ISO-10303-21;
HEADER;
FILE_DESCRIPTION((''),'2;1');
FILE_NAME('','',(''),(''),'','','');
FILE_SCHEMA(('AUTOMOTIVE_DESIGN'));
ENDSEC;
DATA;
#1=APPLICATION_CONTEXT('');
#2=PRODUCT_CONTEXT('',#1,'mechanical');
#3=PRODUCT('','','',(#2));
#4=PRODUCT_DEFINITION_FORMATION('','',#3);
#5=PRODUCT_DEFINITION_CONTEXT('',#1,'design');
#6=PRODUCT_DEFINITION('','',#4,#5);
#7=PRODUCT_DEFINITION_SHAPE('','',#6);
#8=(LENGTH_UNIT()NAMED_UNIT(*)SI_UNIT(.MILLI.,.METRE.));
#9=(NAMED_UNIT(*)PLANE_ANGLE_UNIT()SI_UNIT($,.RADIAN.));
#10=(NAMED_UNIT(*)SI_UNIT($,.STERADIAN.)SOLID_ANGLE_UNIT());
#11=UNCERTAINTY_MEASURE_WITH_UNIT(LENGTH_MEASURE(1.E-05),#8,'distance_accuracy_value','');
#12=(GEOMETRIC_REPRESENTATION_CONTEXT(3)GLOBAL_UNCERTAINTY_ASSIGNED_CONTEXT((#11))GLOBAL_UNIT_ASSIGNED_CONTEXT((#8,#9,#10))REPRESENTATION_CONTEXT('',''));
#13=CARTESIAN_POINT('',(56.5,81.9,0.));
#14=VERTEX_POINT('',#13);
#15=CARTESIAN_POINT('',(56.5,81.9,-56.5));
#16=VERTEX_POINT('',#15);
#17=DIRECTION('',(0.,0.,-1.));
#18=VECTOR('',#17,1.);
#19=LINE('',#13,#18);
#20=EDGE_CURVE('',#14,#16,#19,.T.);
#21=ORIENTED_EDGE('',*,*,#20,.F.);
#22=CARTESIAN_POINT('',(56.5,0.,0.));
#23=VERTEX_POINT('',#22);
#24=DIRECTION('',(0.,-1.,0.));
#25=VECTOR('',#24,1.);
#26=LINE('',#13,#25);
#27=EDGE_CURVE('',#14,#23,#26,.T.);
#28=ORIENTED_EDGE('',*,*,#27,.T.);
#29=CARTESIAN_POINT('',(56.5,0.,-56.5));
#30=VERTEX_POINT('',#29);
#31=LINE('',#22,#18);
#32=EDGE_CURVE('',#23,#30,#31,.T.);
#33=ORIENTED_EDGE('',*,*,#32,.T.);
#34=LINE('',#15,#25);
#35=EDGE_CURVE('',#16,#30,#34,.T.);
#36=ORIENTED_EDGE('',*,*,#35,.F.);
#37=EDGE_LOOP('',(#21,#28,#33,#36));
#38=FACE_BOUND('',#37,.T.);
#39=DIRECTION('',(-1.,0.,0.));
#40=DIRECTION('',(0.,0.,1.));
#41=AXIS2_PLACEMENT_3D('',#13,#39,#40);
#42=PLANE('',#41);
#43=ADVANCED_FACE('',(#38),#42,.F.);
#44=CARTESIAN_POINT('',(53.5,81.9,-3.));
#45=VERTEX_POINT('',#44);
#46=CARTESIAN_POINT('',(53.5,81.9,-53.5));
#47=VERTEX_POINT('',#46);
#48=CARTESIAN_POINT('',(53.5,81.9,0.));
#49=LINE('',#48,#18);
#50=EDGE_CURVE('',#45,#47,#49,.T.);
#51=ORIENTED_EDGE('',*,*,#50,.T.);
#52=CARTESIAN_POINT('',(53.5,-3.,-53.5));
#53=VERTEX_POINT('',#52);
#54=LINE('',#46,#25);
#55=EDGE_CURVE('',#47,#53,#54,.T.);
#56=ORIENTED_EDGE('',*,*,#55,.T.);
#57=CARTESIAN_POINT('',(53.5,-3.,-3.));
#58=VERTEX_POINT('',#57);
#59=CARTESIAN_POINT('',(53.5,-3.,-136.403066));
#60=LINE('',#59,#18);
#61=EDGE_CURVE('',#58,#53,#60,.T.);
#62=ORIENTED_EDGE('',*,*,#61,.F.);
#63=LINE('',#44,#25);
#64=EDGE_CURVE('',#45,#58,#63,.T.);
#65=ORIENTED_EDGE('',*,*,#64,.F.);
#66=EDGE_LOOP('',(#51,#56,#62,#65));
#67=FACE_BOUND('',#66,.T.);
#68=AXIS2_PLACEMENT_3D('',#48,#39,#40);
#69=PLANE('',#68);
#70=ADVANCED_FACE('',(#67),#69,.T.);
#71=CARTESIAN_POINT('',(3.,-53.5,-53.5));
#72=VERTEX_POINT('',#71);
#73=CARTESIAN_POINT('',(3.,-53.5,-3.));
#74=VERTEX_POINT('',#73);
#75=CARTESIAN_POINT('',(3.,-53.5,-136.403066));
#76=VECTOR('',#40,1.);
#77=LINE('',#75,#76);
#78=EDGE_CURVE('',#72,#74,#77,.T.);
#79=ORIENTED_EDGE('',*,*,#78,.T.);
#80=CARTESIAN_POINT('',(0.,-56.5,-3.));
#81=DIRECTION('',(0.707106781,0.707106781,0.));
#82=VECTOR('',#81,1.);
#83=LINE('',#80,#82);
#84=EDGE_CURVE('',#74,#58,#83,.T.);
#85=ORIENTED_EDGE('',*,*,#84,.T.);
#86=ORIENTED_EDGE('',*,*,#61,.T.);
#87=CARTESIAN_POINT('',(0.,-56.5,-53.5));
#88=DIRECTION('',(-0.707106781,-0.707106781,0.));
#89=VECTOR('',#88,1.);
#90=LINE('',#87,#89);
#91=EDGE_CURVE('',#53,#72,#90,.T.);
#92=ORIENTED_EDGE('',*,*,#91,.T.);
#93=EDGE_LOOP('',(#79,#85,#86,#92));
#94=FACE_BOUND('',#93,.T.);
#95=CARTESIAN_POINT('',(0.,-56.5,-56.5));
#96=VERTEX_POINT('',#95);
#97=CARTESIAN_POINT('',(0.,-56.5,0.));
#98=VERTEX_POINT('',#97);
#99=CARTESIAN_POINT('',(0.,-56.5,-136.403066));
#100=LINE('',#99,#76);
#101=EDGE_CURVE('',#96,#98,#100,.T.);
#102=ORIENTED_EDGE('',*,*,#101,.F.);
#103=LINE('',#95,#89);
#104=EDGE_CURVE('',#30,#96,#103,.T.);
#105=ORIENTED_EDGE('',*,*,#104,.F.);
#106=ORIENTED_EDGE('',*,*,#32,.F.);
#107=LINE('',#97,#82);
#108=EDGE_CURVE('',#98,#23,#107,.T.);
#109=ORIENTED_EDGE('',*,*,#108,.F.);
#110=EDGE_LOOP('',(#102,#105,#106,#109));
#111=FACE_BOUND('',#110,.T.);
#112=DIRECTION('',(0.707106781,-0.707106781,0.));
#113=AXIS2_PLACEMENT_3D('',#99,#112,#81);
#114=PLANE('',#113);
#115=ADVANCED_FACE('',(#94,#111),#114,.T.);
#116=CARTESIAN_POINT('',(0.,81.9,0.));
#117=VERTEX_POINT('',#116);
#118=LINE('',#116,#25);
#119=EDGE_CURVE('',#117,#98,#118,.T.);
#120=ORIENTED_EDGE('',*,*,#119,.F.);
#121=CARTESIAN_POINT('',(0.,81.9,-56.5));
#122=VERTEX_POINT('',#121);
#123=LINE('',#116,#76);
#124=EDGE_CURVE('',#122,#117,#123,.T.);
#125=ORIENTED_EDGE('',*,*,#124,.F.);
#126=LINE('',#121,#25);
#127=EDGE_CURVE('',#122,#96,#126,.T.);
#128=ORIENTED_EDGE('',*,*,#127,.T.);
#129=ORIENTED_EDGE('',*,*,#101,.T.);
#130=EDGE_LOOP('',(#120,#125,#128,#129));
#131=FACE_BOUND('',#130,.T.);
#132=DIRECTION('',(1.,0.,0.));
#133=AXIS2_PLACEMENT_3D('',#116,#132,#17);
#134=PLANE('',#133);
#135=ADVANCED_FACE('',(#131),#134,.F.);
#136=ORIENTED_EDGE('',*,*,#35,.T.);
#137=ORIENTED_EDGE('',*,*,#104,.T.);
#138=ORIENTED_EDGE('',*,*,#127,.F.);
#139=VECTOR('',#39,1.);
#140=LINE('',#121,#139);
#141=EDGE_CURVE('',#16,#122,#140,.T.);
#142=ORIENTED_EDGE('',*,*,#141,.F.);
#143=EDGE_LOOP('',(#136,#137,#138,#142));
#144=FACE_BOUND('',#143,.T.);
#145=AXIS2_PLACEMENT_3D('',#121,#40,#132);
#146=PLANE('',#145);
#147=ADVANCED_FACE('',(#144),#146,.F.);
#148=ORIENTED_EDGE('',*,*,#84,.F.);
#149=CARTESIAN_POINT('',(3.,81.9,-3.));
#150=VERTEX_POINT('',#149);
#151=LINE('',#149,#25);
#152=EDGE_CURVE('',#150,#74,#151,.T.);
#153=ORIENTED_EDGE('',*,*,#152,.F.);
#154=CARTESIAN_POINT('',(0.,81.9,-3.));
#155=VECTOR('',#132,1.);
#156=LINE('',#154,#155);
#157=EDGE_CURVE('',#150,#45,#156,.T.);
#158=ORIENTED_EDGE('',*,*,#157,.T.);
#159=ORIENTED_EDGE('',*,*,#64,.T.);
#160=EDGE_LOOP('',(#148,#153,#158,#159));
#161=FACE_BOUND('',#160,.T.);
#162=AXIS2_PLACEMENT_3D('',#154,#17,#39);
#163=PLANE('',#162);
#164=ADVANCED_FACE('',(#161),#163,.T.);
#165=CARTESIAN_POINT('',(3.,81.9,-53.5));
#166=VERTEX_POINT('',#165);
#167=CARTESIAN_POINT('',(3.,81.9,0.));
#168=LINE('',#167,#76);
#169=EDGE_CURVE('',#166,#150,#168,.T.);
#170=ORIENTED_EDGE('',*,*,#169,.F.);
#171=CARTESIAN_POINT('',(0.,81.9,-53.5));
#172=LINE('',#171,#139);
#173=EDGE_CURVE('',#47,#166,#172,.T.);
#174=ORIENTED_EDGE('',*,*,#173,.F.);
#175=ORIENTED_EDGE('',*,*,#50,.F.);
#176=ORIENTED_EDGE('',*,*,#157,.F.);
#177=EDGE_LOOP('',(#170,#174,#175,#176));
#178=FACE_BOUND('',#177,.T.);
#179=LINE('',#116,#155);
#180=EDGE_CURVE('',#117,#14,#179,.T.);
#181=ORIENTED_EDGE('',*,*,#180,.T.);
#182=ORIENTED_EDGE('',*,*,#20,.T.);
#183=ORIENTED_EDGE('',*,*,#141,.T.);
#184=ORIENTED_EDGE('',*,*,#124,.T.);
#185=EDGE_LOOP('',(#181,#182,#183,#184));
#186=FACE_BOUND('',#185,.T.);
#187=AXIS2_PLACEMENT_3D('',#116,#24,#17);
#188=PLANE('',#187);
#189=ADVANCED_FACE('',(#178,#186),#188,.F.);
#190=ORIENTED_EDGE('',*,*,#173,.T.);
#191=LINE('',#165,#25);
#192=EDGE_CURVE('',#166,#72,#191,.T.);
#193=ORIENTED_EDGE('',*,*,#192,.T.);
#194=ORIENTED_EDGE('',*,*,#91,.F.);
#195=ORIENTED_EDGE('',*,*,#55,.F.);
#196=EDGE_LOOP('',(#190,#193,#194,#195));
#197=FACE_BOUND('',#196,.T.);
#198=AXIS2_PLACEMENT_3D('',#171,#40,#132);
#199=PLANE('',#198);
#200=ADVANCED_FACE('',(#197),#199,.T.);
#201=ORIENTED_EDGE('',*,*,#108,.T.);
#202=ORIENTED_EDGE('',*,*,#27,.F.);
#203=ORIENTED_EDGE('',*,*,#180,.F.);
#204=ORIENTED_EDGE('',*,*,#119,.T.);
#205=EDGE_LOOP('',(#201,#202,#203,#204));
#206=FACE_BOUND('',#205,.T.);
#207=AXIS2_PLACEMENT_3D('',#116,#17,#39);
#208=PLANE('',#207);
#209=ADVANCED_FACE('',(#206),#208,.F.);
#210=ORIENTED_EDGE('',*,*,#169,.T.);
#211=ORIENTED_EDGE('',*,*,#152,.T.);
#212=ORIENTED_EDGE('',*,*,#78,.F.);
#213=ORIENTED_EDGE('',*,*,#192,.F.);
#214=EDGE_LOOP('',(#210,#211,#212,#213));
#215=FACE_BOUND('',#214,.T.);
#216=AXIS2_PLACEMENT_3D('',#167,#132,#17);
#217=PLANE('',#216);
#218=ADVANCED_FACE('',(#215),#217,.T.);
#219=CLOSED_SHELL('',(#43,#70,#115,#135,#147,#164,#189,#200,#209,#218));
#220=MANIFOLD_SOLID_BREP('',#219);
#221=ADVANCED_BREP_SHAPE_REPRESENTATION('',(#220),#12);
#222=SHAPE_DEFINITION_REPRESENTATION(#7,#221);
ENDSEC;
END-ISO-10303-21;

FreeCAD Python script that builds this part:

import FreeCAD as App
import Part
import Sketcher
Q = App.Units.Quantity


def faces_at(feature, points):
    """Names of the faces that lie closest to the given points."""
    faces = feature.Shape.Faces
    near = lambda p: min(range(len(faces)), key=lambda i: faces[i].distToShape(Part.Vertex(*p))[0])
    return sorted({f"Face{near(p) + 1}" for p in points})


def add_polygon(sketch, points):
    """Adds a closed chain of lines whose ends are joined by coincident constraints."""
    first, n = sketch.GeometryCount, len(points)
    for a, b in zip(points, points[1:] + points[:1]):
        sketch.addGeometry(Part.LineSegment(App.Vector(*a, 0), App.Vector(*b, 0)), False)
    for i in range(n):
        sketch.addConstraint(Sketcher.Constraint("Coincident", first + i, 2, first + (i + 1) % n, 1))

doc = App.newDocument("Part")
body = doc.addObject("PartDesign::Body", "Body")

sketch1 = doc.addObject("Sketcher::SketchObject", "Sketch")
body.addObject(sketch1)
sketch1.AttachmentSupport = (doc.XZ_Plane, [""])
sketch1.MapMode = "FlatFace"
add_polygon(sketch1, [(0, -56), (0, 0), (56, 0), (56, -56)])
sketch1.addConstraint([
    Sketcher.Constraint("Vertical", 0),
    Sketcher.Constraint("Horizontal", 1),
    Sketcher.Constraint("Vertical", 2),
    Sketcher.Constraint("Horizontal", 3),
    Sketcher.Constraint("Coincident", 0, 2, -1, 1),
    Sketcher.Constraint("Equal", 3, 0),
    Sketcher.Constraint("DistanceX", 1, 1, 1, 2, Q("56.5 mm")),
])
pad1 = doc.addObject("PartDesign::Pad", "Pad")
body.addObject(pad1)
pad1.Profile = sketch1
pad1.Length = 81.9
pad1.Reversed = True

sketch2 = doc.addObject("Sketcher::SketchObject", "Sketch001")
body.addObject(sketch2)
sketch2.AttachmentSupport = (doc.XY_Plane, [""])
sketch2.MapMode = "FlatFace"
add_polygon(sketch2, [(0, 0), (0, -56), (56, 0)])
sketch2.addConstraint([
    Sketcher.Constraint("Vertical", 0),
    Sketcher.Constraint("Horizontal", 2),
    Sketcher.Constraint("Coincident", 2, 2, -1, 1),
    Sketcher.Constraint("Equal", 2, 0),
    Sketcher.Constraint("DistanceX", 2, 2, 2, 1, Q("56.5 mm")),
])
pad2 = doc.addObject("PartDesign::Pad", "Pad001")
body.addObject(pad2)
pad2.Profile = sketch2
pad2.Length = 56.5
pad2.Reversed = True
doc.recompute()

thickness = doc.addObject("PartDesign::Thickness", "Thickness")
body.addObject(thickness)
thickness.Base = (pad2, faces_at(pad2, [(28.25, 81.9, -28.25), (28.25, -28.25, -28.25)]))
thickness.Value = 3
thickness.Reversed = True
thickness.Join = "Intersection"

doc.recompute()
